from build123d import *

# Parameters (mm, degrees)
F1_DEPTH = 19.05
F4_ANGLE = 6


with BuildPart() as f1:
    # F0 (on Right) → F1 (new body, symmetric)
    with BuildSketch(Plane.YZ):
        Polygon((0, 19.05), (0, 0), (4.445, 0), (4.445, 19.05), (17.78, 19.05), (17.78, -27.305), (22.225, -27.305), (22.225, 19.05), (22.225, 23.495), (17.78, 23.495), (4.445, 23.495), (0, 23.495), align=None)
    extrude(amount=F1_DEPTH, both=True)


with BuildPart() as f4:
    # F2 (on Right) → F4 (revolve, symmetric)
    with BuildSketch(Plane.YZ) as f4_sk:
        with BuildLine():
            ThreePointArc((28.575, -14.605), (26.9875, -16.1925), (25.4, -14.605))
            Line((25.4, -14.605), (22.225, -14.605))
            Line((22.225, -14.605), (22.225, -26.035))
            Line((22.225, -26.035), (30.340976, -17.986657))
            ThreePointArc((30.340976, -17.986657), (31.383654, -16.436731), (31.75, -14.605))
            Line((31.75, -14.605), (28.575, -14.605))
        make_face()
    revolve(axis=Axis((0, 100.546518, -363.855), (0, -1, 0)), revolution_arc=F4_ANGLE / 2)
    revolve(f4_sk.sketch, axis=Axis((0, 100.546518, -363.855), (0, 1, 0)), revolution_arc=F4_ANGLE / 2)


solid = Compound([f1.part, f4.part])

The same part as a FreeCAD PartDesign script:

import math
import FreeCAD as App
import Part
import Sketcher

V = App.Vector
Q = App.Units.Quantity

doc = App.newDocument("Part")
params = doc.addObject("Spreadsheet::Sheet", "Params")
for row, (alias, value) in enumerate([
    ("sketch1_height", "2 in"),
    ("sketch1_height2", "0.75 in"),
    ("sketch1_width", "0.175 in"),
    ("sketch1_height3", "1.825 in"),
    ("pad1_length", "1.5 in"),
    ("sketch2_radius", "0.0625 in"),
    ("sketch2_radius2", "0.1874999 in"),
    ("sketch2_height", "0.45 in"),
    ("revolution_angle", "3 deg"),
    ("sketch3_radius", "0.0625 in"),
    ("sketch3_radius2", "0.1874999 in"),
    ("sketch3_height", "0.45 in"),
    ("revolution2_angle", "3 deg"),
], start=1):
    params.set(f"A{row}", alias)
    params.set(f"B{row}", "=" + value)
    params.setAlias(f"B{row}", alias)

body = doc.addObject("PartDesign::Body", "Body")

# Sketch on YZ plane
sketch1 = doc.addObject("Sketcher::SketchObject", "Sketch")
body.addObject(sketch1)
sketch1.AttachmentSupport = (doc.YZ_Plane, [""])
sketch1.MapMode = "FlatFace"
sketch1.addGeometry(Part.LineSegment(V(0, 0, 0), V(4.445, 0, 0)), False)
sketch1.addGeometry(Part.LineSegment(V(4.445, 0, 0), V(4.445, 19.05, 0)), False)
sketch1.addGeometry(Part.LineSegment(V(4.445, 19.05, 0), V(17.78, 19.05, 0)), False)
sketch1.addGeometry(Part.LineSegment(V(17.78, 19.05, 0), V(17.78, -27.305, 0)), False)
sketch1.addGeometry(Part.LineSegment(V(17.78, -27.305, 0), V(22.225, -27.305, 0)), False)
sketch1.addGeometry(Part.LineSegment(V(22.225, -27.305, 0), V(22.225, 23.495, 0)), False)
sketch1.addGeometry(Part.LineSegment(V(22.225, 23.495, 0), V(0, 23.495, 0)), False)
sketch1.addGeometry(Part.LineSegment(V(0, 23.495, 0), V(0, 0, 0)), False)
sketch1.addConstraint(Sketcher.Constraint("Coincident", 0, 2, 1, 1))
sketch1.addConstraint(Sketcher.Constraint("Coincident", 1, 2, 2, 1))
sketch1.addConstraint(Sketcher.Constraint("Coincident", 2, 2, 3, 1))
sketch1.addConstraint(Sketcher.Constraint("Coincident", 3, 2, 4, 1))
sketch1.addConstraint(Sketcher.Constraint("Coincident", 4, 2, 5, 1))
sketch1.addConstraint(Sketcher.Constraint("Coincident", 5, 2, 6, 1))
sketch1.addConstraint(Sketcher.Constraint("Coincident", 6, 2, 7, 1))
sketch1.addConstraint(Sketcher.Constraint("Coincident", 7, 2, 0, 1))
sketch1.addConstraint(Sketcher.Constraint("Horizontal", 0))
sketch1.addConstraint(Sketcher.Constraint("Vertical", 1))
sketch1.addConstraint(Sketcher.Constraint("Horizontal", 2))
sketch1.addConstraint(Sketcher.Constraint("Vertical", 3))
sketch1.addConstraint(Sketcher.Constraint("Horizontal", 4))
sketch1.addConstraint(Sketcher.Constraint("Vertical", 5))
sketch1.addConstraint(Sketcher.Constraint("Horizontal", 6))
sketch1.addConstraint(Sketcher.Constraint("Vertical", 7))
sketch1.addConstraint(Sketcher.Constraint("Coincident", 7, 2, -1, 1))
sketch1.addConstraint(Sketcher.Constraint("Equal", 0, 4))
sketch1.addConstraint(Sketcher.Constraint("DistanceY", 5, 1, 5, 2, Q("2 in")))
sketch1.addConstraint(Sketcher.Constraint("DistanceY", 1, 1, 1, 2, Q("0.75 in")))
sketch1.addConstraint(Sketcher.Constraint("DistanceX", -1, 1, 2, 2, Q("0.7 in")))
sketch1.addConstraint(Sketcher.Constraint("DistanceX", 0, 1, 0, 2, Q("0.175 in")))
sketch1.addConstraint(Sketcher.Constraint("DistanceY", 3, 2, 3, 1, Q("1.825 in")))
sketch1.setExpression("Constraints[18]", "Params.sketch1_height")
sketch1.setExpression("Constraints[19]", "Params.sketch1_height2")
sketch1.setExpression("Constraints[21]", "Params.sketch1_width")
sketch1.setExpression("Constraints[22]", "Params.sketch1_height3")
pad1 = doc.addObject("PartDesign::Pad", "Pad")
body.addObject(pad1)
pad1.Profile = sketch1
pad1.setExpression("Length", "Params.pad1_length")
pad1.Midplane = True
body2 = doc.addObject("PartDesign::Body", "Body001")

# Sketch on YZ plane
sketch2 = doc.addObject("Sketcher::SketchObject", "Sketch001")
body2.addObject(sketch2)
sketch2.AttachmentSupport = (doc.getObject("YZ_Plane001"), [""])
sketch2.MapMode = "FlatFace"
sketch2.addGeometry(Part.ArcOfCircle(Part.Circle(V(26.9875, -14.605, 0), V(0, 0, 1), 1.5875), math.radians(180), math.radians(360)), False)
sketch2.addGeometry(Part.LineSegment(V(25.4, -14.605, 0), V(22.225, -14.605, 0)), False)
sketch2.addGeometry(Part.LineSegment(V(22.225, -14.605, 0), V(22.225, -26.035, 0)), False)
sketch2.addGeometry(Part.LineSegment(V(22.225, -26.035, 0), V(30.340976, -17.986657, 0)), False)
sketch2.addGeometry(Part.ArcOfCircle(Part.Circle(V(26.987503, -14.605001, 0), V(0, 0, 1), 4.762497), math.radians(-45.239752), math.radians(0.000015)), False)
sketch2.addGeometry(Part.LineSegment(V(31.75, -14.605, 0), V(28.575, -14.605, 0)), False)
sketch2.addGeometry(Part.LineSegment(V(31.75, -363.855, 0), V(22.225, -363.855, 0)), True)  # axis
sketch2.addConstraint(Sketcher.Constraint("Coincident", 0, 1, 1, 1))
sketch2.addConstraint(Sketcher.Constraint("Coincident", 1, 2, 2, 1))
sketch2.addConstraint(Sketcher.Constraint("Coincident", 2, 2, 3, 1))
sketch2.addConstraint(Sketcher.Constraint("Tangent", 3, 2, 4, 1))
sketch2.addConstraint(Sketcher.Constraint("Coincident", 4, 2, 5, 1))
sketch2.addConstraint(Sketcher.Constraint("Coincident", 5, 2, 0, 2))
sketch2.addConstraint(Sketcher.Constraint("Horizontal", 1))
sketch2.addConstraint(Sketcher.Constraint("Vertical", 2))
sketch2.addConstraint(Sketcher.Constraint("Horizontal", 5))
sketch2.addConstraint(Sketcher.Constraint("Horizontal", 6))
sketch2.addConstraint(Sketcher.Constraint("Coincident", 4, 3, 0, 3))
sketch2.addConstraint(Sketcher.Constraint("Horizontal", 4, 3, 0, 1))
sketch2.addConstraint(Sketcher.Constraint("Horizontal", 1, 2, 4, 2))
sketch2.addConstraint(Sketcher.Constraint("Vertical", 4, 2, 6, 1))
sketch2.addConstraint(Sketcher.Constraint("Vertical", 2, 2, 6, 2))
sketch2.addConstraint(Sketcher.Constraint("Equal", 1, 5))
sketch2.addConstraint(Sketcher.Constraint("DistanceX", -1, 1, 0, 1, Q("1 in")))
sketch2.addConstraint(Sketcher.Constraint("Radius", 0, Q("0.0625 in")))
sketch2.addConstraint(Sketcher.Constraint("Radius", 4, Q("0.1874999 in")))
sketch2.addConstraint(Sketcher.Constraint("DistanceY", 2, 2, 2, 1, Q("0.45 in")))
sketch2.addConstraint(Sketcher.Constraint("DistanceY", 6, 1, 2, 2, Q("13.3 in")))
sketch2.addConstraint(Sketcher.Constraint("DistanceY", 0, 3, -1, 1, Q("0.575 in")))
sketch2.setExpression("Constraints[17]", "Params.sketch2_radius")
sketch2.setExpression("Constraints[18]", "Params.sketch2_radius2")
sketch2.setExpression("Constraints[19]", "Params.sketch2_height")
revolution = doc.addObject("PartDesign::Revolution", "Revolution")
body2.addObject(revolution)
revolution.Profile = sketch2
revolution.ReferenceAxis = (sketch2, ["Axis0"])
revolution.setExpression("Angle", "Params.revolution_angle")

# Sketch on YZ plane
sketch3 = doc.addObject("Sketcher::SketchObject", "Sketch002")
body2.addObject(sketch3)
sketch3.AttachmentSupport = (doc.getObject("YZ_Plane001"), [""])
sketch3.MapMode = "FlatFace"
sketch3.addGeometry(Part.ArcOfCircle(Part.Circle(V(26.9875, -14.605, 0), V(0, 0, 1), 1.5875), math.radians(180), math.radians(360)), False)
sketch3.addGeometry(Part.LineSegment(V(25.4, -14.605, 0), V(22.225, -14.605, 0)), False)
sketch3.addGeometry(Part.LineSegment(V(22.225, -14.605, 0), V(22.225, -26.035, 0)), False)
sketch3.addGeometry(Part.LineSegment(V(22.225, -26.035, 0), V(30.340976, -17.986657, 0)), False)
sketch3.addGeometry(Part.ArcOfCircle(Part.Circle(V(26.987503, -14.605001, 0), V(0, 0, 1), 4.762497), math.radians(-45.239752), math.radians(0.000015)), False)
sketch3.addGeometry(Part.LineSegment(V(31.75, -14.605, 0), V(28.575, -14.605, 0)), False)
sketch3.addGeometry(Part.LineSegment(V(22.225, -363.855, 0), V(31.75, -363.855, 0)), True)  # axis
sketch3.addConstraint(Sketcher.Constraint("Coincident", 0, 1, 1, 1))
sketch3.addConstraint(Sketcher.Constraint("Coincident", 1, 2, 2, 1))
sketch3.addConstraint(Sketcher.Constraint("Coincident", 2, 2, 3, 1))
sketch3.addConstraint(Sketcher.Constraint("Tangent", 3, 2, 4, 1))
sketch3.addConstraint(Sketcher.Constraint("Coincident", 4, 2, 5, 1))
sketch3.addConstraint(Sketcher.Constraint("Coincident", 5, 2, 0, 2))
sketch3.addConstraint(Sketcher.Constraint("Horizontal", 1))
sketch3.addConstraint(Sketcher.Constraint("Vertical", 2))
sketch3.addConstraint(Sketcher.Constraint("Horizontal", 5))
sketch3.addConstraint(Sketcher.Constraint("Horizontal", 6))
sketch3.addConstraint(Sketcher.Constraint("Coincident", 4, 3, 0, 3))
sketch3.addConstraint(Sketcher.Constraint("Horizontal", 4, 3, 0, 1))
sketch3.addConstraint(Sketcher.Constraint("Horizontal", 1, 2, 4, 2))
sketch3.addConstraint(Sketcher.Constraint("Vertical", 2, 2, 6, 1))
sketch3.addConstraint(Sketcher.Constraint("Vertical", 4, 2, 6, 2))
sketch3.addConstraint(Sketcher.Constraint("Equal", 1, 5))
sketch3.addConstraint(Sketcher.Constraint("DistanceX", -1, 1, 0, 1, Q("1 in")))
sketch3.addConstraint(Sketcher.Constraint("Radius", 0, Q("0.0625 in")))
sketch3.addConstraint(Sketcher.Constraint("Radius", 4, Q("0.1874999 in")))
sketch3.addConstraint(Sketcher.Constraint("DistanceY", 2, 2, 2, 1, Q("0.45 in")))
sketch3.addConstraint(Sketcher.Constraint("DistanceY", 6, 1, 2, 2, Q("13.3 in")))
sketch3.addConstraint(Sketcher.Constraint("DistanceY", 0, 3, -1, 1, Q("0.575 in")))
sketch3.setExpression("Constraints[17]", "Params.sketch3_radius")
sketch3.setExpression("Constraints[18]", "Params.sketch3_radius2")
sketch3.setExpression("Constraints[19]", "Params.sketch3_height")
revolution2 = doc.addObject("PartDesign::Revolution", "Revolution001")
body2.addObject(revolution2)
revolution2.Profile = sketch3
revolution2.ReferenceAxis = (sketch3, ["Axis0"])
revolution2.setExpression("Angle", "Params.revolution2_angle")

doc.recompute()
